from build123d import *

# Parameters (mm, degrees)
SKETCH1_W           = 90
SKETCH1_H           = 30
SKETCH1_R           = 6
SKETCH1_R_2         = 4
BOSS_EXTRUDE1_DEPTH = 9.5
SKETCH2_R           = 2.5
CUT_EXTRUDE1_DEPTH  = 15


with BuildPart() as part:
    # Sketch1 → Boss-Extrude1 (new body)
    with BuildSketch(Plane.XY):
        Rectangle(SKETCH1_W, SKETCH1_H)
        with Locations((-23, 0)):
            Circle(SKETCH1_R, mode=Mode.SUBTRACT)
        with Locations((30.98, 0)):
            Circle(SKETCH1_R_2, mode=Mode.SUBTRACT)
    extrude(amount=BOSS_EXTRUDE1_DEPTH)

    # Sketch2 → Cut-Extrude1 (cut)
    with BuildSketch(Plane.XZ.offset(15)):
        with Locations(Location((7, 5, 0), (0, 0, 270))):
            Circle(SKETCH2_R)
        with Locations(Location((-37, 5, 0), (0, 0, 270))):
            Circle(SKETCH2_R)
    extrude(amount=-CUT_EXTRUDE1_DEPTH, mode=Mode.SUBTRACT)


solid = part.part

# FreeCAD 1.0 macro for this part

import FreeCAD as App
import Part
import Sketcher

V = App.Vector
Q = App.Units.Quantity

doc = App.newDocument("Part")
params = doc.addObject("Spreadsheet::Sheet", "Params")
for row, (alias, value) in enumerate([
    ("sketch1_diameter", "12 mm"),
    ("sketch1_diameter2", "8 mm"),
    ("sketch1_width", "90 mm"),
    ("sketch1_height", "30 mm"),
    ("pad1_length", "9.5 mm"),
    ("sketch2_diameter", "5 mm"),
    ("pocket1_length", "15 mm"),
], start=1):
    params.set(f"A{row}", alias)
    params.set(f"B{row}", "=" + value)
    params.setAlias(f"B{row}", alias)

body = doc.addObject("PartDesign::Body", "Body")

# Sketch on XY plane
sketch1 = body.newObject("Sketcher::SketchObject", "Sketch")
sketch1.AttachmentSupport = (doc.getObject("XY_Plane"), [""])
sketch1.MapMode = "FlatFace"
sketch1.addGeometry([
    Part.LineSegment(V(-45, 15, 0), V(-45, -15, 0)),  # 0
    Part.LineSegment(V(-45, -15, 0), V(45, -15, 0)),  # 1
    Part.LineSegment(V(45, -15, 0), V(45, 15, 0)),  # 2
    Part.LineSegment(V(45, 15, 0), V(-45, 15, 0)),  # 3
    Part.Circle(V(-23, 0, 0), V(0, 0, 1), 6),  # 4
    Part.Circle(V(31, 0, 0), V(0, 0, 1), 4),  # 5
], False)
sketch1.addConstraint([
    Sketcher.Constraint("Coincident", 0, 2, 1, 1),
    Sketcher.Constraint("Coincident", 1, 2, 2, 1),
    Sketcher.Constraint("Coincident", 2, 2, 3, 1),
    Sketcher.Constraint("Coincident", 3, 2, 0, 1),
    Sketcher.Constraint("Vertical", 0),
    Sketcher.Constraint("Horizontal", 1),
    Sketcher.Constraint("Vertical", 2),
    Sketcher.Constraint("Horizontal", 3),
    Sketcher.Constraint("Symmetric", 0, 2, 2, 2, -1, 1),
    Sketcher.Constraint("PointOnObject", 4, 3, -1),
    Sketcher.Constraint("PointOnObject", 5, 3, -1),
    Sketcher.Constraint("Diameter", 4, Q("12 mm")),
    Sketcher.Constraint("Diameter", 5, Q("8 mm")),
    Sketcher.Constraint("DistanceX", 1, 1, 1, 2, Q("90 mm")),
    Sketcher.Constraint("DistanceY", 0, 2, 0, 1, Q("30 mm")),
    Sketcher.Constraint("DistanceX", 4, 3, -1, 1, Q("23 mm")),
    Sketcher.Constraint("DistanceX", -1, 1, 5, 3, Q("30.98 mm")),
])
sketch1.setExpression("Constraints[11]", "Params.sketch1_diameter")
sketch1.setExpression("Constraints[12]", "Params.sketch1_diameter2")
sketch1.setExpression("Constraints[13]", "Params.sketch1_width")
sketch1.setExpression("Constraints[14]", "Params.sketch1_height")
pad1 = body.newObject("PartDesign::Pad", "Pad")
pad1.Profile = sketch1
pad1.setExpression("Length", "Params.pad1_length")

# Sketch on XZ plane
sketch2 = body.newObject("Sketcher::SketchObject", "Sketch001")
sketch2.AttachmentSupport = (doc.getObject("XZ_Plane"), [""])
sketch2.MapMode = "FlatFace"
sketch2.AttachmentOffset = App.Placement(V(0, 0, 15), App.Rotation())
sketch2.addGeometry([
    Part.Circle(V(7, 5, 0), V(0, 0, 1), 2.5),
    Part.Circle(V(-37, 5, 0), V(0, 0, 1), 2.5),
], False)
sketch2.addConstraint([
    Sketcher.Constraint("Equal", 0, 1),
    Sketcher.Constraint("Horizontal", 0, 3, 1, 3),
    Sketcher.Constraint("Diameter", 0, Q("5 mm")),
    Sketcher.Constraint("DistanceX", -1, 1, 0, 3, Q("7 mm")),
    Sketcher.Constraint("DistanceY", -1, 1, 0, 3, Q("5 mm")),
    Sketcher.Constraint("DistanceX", 1, 3, -1, 1, Q("37 mm")),
])
sketch2.setExpression("Constraints[2]", "Params.sketch2_diameter")
pocket1 = body.newObject("PartDesign::Pocket", "Pocket")
pocket1.Profile = sketch2
pocket1.setExpression("Length", "Params.pocket1_length")

doc.recompute()
